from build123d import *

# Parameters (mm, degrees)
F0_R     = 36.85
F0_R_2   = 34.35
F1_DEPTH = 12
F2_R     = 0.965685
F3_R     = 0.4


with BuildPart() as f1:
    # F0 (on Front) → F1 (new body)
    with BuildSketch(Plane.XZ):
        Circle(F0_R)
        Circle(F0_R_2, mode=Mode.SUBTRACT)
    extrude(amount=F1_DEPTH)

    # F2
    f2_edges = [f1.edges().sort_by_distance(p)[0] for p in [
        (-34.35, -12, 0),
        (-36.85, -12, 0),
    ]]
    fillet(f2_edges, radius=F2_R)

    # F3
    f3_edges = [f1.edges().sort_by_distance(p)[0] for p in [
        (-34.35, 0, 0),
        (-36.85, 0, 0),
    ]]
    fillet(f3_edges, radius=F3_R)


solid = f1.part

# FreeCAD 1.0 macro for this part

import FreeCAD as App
import Part
import Sketcher
from FreeCAD import Vector
Q = App.Units.Quantity


def edges_at(feature, points):
    """Names of the edges that pass closest to the given points."""
    edges = feature.Shape.Edges
    near = lambda p: min(range(len(edges)), key=lambda i: edges[i].distToShape(Part.Vertex(*p))[0])
    return sorted({f"Edge{near(p) + 1}" for p in points})

doc = App.newDocument("Part")
body = doc.addObject("PartDesign::Body", "Body")

sketch1 = body.newObject("Sketcher::SketchObject", "Sketch")
sketch1.AttachmentSupport = (doc.getObject("XZ_Plane"), [""])
sketch1.MapMode = "FlatFace"
sketch1.addGeometry([
    Part.Circle(Vector(0, 0, 0), Vector(0, 0, 1), 36.85),
    Part.Circle(Vector(0, 0, 0), Vector(0, 0, 1), 34.35),
], False)
sketch1.addConstraint([
    Sketcher.Constraint("Coincident", 0, 3, -1, 1),
    Sketcher.Constraint("Coincident", 1, 3, -1, 1),
    Sketcher.Constraint("Diameter", 0, Q("73.7 mm")),
    Sketcher.Constraint("Diameter", 1, Q("68.7 mm")),
])
pad1 = body.newObject("PartDesign::Pad", "Pad")
pad1.Profile = sketch1
pad1.Length = 12
doc.recompute()

fillet = body.newObject("PartDesign::Fillet", "Fillet")
fillet.Base = (pad1, edges_at(pad1, [(-34.35, -12, 0), (-36.85, -12, 0)]))
fillet.Radius = 0.965685
doc.recompute()

fillet2 = body.newObject("PartDesign::Fillet", "Fillet001")
fillet2.Base = (fillet, edges_at(fillet, [(-34.35, 0, 0), (-36.85, 0, 0)]))
fillet2.Radius = 0.4

doc.recompute()
